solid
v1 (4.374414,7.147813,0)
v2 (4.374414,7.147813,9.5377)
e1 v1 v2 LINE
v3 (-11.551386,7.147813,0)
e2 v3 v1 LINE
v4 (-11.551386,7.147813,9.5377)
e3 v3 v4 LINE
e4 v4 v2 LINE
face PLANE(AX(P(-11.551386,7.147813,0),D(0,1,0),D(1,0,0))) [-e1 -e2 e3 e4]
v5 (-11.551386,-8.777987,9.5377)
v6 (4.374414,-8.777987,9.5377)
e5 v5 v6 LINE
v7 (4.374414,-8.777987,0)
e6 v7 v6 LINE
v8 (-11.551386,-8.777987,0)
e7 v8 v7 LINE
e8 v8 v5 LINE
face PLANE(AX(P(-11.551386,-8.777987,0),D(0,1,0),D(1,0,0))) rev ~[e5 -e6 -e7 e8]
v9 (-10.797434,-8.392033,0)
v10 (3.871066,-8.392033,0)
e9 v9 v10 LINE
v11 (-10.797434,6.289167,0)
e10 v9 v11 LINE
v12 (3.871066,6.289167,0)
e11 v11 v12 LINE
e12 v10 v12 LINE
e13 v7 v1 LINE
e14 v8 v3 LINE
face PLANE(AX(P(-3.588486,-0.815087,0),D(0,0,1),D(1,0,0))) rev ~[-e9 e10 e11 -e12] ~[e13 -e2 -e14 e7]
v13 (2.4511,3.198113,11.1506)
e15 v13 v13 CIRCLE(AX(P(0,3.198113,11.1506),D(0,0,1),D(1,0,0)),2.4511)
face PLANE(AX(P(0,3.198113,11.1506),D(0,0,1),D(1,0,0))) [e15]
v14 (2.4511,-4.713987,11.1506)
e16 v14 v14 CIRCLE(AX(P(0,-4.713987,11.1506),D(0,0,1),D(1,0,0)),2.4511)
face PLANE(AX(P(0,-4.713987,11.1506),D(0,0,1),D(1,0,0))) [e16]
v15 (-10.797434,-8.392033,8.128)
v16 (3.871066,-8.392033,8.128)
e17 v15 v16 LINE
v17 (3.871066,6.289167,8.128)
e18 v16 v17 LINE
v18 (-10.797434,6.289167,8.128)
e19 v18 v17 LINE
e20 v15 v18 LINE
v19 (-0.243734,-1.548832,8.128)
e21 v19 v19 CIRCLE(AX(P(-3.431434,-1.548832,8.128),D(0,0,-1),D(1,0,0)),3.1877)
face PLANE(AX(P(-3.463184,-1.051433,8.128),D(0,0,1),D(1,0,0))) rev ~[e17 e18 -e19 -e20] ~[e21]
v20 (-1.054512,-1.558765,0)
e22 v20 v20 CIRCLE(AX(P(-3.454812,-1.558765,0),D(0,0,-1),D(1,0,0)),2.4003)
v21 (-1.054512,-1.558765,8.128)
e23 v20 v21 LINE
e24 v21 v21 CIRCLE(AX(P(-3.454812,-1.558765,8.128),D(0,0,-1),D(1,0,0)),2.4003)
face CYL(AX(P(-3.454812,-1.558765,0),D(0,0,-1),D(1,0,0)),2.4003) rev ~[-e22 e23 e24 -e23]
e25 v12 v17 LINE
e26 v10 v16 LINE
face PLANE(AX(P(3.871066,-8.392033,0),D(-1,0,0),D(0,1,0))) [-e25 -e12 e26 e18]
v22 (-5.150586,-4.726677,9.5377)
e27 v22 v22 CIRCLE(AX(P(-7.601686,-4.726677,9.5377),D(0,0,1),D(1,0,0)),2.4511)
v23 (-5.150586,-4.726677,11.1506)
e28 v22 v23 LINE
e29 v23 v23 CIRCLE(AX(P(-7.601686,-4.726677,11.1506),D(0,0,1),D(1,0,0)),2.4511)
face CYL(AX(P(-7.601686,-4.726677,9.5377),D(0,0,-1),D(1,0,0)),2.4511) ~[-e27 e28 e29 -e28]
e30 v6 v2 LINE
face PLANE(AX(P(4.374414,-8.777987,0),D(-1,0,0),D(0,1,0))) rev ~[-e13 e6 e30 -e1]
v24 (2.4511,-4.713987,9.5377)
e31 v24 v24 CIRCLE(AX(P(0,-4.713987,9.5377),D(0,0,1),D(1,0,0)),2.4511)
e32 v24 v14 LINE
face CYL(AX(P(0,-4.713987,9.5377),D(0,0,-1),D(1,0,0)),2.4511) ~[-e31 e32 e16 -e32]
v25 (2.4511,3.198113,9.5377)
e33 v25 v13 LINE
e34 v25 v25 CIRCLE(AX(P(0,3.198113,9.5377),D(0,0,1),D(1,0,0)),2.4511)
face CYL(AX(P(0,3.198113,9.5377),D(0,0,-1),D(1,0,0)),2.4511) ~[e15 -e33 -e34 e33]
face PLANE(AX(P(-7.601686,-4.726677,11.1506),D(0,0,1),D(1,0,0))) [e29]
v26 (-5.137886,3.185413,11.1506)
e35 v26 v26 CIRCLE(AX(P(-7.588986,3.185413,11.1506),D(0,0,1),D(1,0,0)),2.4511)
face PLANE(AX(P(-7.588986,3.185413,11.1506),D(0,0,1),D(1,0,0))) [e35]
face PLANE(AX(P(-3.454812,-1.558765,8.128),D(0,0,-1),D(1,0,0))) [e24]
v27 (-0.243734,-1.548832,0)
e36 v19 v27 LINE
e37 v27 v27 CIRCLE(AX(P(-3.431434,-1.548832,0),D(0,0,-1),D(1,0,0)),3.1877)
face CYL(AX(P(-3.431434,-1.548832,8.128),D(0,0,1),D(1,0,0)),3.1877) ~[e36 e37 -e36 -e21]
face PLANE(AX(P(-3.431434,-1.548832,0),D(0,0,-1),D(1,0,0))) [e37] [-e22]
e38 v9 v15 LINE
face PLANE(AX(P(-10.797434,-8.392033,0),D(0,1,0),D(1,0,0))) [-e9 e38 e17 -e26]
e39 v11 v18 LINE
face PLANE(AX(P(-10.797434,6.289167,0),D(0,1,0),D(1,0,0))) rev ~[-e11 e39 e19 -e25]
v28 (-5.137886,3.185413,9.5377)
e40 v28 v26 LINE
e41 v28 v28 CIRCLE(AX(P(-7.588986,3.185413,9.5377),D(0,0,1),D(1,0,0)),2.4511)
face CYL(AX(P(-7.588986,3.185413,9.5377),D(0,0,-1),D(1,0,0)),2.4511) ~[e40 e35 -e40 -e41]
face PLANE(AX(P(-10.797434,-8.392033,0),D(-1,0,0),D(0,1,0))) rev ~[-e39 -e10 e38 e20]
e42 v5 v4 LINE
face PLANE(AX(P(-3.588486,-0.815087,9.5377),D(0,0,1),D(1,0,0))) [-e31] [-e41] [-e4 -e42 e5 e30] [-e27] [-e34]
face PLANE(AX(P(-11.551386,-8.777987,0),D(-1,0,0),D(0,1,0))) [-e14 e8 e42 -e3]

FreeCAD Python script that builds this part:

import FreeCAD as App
import Part
import Sketcher
from FreeCAD import Vector
Q = App.Units.Quantity


def add_polygon(sketch, points):
    """Adds a closed chain of lines whose ends are joined by coincident constraints."""
    first, n = sketch.GeometryCount, len(points)
    for a, b in zip(points, points[1:] + points[:1]):
        sketch.addGeometry(Part.LineSegment(App.Vector(*a, 0), App.Vector(*b, 0)), False)
    for i in range(n):
        sketch.addConstraint(Sketcher.Constraint("Coincident", first + i, 2, first + (i + 1) % n, 1))

doc = App.newDocument("Part")
body = doc.addObject("PartDesign::Body", "Body")

# Sketch on XY plane
sketch1 = doc.addObject("Sketcher::SketchObject", "Sketch")
body.addObject(sketch1)
sketch1.AttachmentSupport = (doc.XY_Plane, [""])
sketch1.MapMode = "FlatFace"
add_polygon(sketch1, [(-12, 7), (-12, -9), (4, -9), (4, 7)])  # lines 0-3
sketch1.addConstraint([
    Sketcher.Constraint("Vertical", 0),
    Sketcher.Constraint("Horizontal", 1),
    Sketcher.Constraint("Vertical", 2),
    Sketcher.Constraint("Horizontal", 3),
    Sketcher.Constraint("Equal", 3, 0),
    Sketcher.Constraint("DistanceX", 1, 1, 1, 2, Q("0.627 in")),
    Sketcher.Constraint("DistanceX", 0, 2, -1, 1, 11.551386),
    Sketcher.Constraint("DistanceY", 0, 2, -1, 1, 8.777987),
])
pad1 = doc.addObject("PartDesign::Pad", "Pad")
body.addObject(pad1)
pad1.Profile = sketch1
pad1.Length = Q("0.3755 in")

# Sketch on XY plane
sketch2 = doc.addObject("Sketcher::SketchObject", "Sketch001")
body.addObject(sketch2)
sketch2.AttachmentSupport = (doc.XY_Plane, [""])
sketch2.MapMode = "FlatFace"
sketch2.AttachmentOffset = App.Placement(Vector(0, 0, 0.3755 * 25.4), App.Rotation())
sketch2.addGeometry(Part.Circle(Vector(-7.6, -4.7, 0), Vector(0, 0, 1), 2.5), False)
sketch2.addConstraint([
    Sketcher.Constraint("Diameter", 0, Q("0.193 in")),
    Sketcher.Constraint("DistanceX", 0, 3, -1, 1, 7.601686),
    Sketcher.Constraint("DistanceY", 0, 3, -1, 1, 4.726677),
])
pad2 = doc.addObject("PartDesign::Pad", "Pad001")
body.addObject(pad2)
pad2.Profile = sketch2
pad2.Length = Q("0.0635 in")

# Sketch on XY plane
sketch3 = doc.addObject("Sketcher::SketchObject", "Sketch002")
body.addObject(sketch3)
sketch3.AttachmentSupport = (doc.XY_Plane, [""])
sketch3.MapMode = "FlatFace"
sketch3.AttachmentOffset = App.Placement(Vector(0, 0, 0.3755 * 25.4), App.Rotation())
sketch3.addGeometry(Part.Circle(Vector(0, -4.7, 0), Vector(0, 0, 1), 2.5), False)
sketch3.addConstraint([
    Sketcher.Constraint("PointOnObject", 0, 3, -2),
    Sketcher.Constraint("Diameter", 0, Q("0.193 in")),
    Sketcher.Constraint("DistanceY", 0, 3, -1, 1, 4.713987),
])
pad3 = doc.addObject("PartDesign::Pad", "Pad002")
body.addObject(pad3)
pad3.Profile = sketch3
pad3.Length = Q("0.0635 in")

# Sketch on XY plane
sketch4 = doc.addObject("Sketcher::SketchObject", "Sketch003")
body.addObject(sketch4)
sketch4.AttachmentSupport = (doc.XY_Plane, [""])
sketch4.MapMode = "FlatFace"
sketch4.AttachmentOffset = App.Placement(Vector(0, 0, 0.3755 * 25.4), App.Rotation())
sketch4.addGeometry(Part.Circle(Vector(-7.6, 3.2, 0), Vector(0, 0, 1), 2.5), False)
sketch4.addConstraint([
    Sketcher.Constraint("Diameter", 0, Q("0.193 in")),
    Sketcher.Constraint("DistanceX", 0, 3, -1, 1, 7.588986),
    Sketcher.Constraint("DistanceY", -1, 1, 0, 3, 3.185413),
])
pad4 = doc.addObject("PartDesign::Pad", "Pad003")
body.addObject(pad4)
pad4.Profile = sketch4
pad4.Length = Q("0.0635 in")

# Sketch on XY plane
sketch5 = doc.addObject("Sketcher::SketchObject", "Sketch004")
body.addObject(sketch5)
sketch5.AttachmentSupport = (doc.XY_Plane, [""])
sketch5.MapMode = "FlatFace"
sketch5.AttachmentOffset = App.Placement(Vector(0, 0, 0.3755 * 25.4), App.Rotation())
sketch5.addGeometry(Part.Circle(Vector(0, 3.2, 0), Vector(0, 0, 1), 2.5), False)
sketch5.addConstraint([
    Sketcher.Constraint("PointOnObject", 0, 3, -2),
    Sketcher.Constraint("Diameter", 0, Q("0.193 in")),
    Sketcher.Constraint("DistanceY", -1, 1, 0, 3, 3.198113),
])
pad5 = doc.addObject("PartDesign::Pad", "Pad004")
body.addObject(pad5)
pad5.Profile = sketch5
pad5.Length = Q("0.0635 in")

# Sketch on XY plane
sketch6 = doc.addObject("Sketcher::SketchObject", "Sketch005")
body.addObject(sketch6)
sketch6.AttachmentSupport = (doc.XY_Plane, [""])
sketch6.MapMode = "FlatFace"
sketch6.addGeometry(Part.Circle(Vector(-3.5, -0.9, 0), Vector(0, 0, 1), 3.2), False)
sketch6.addConstraint([
    Sketcher.Constraint("Diameter", 0, Q("0.2505 in")),
    Sketcher.Constraint("DistanceX", 0, 3, -1, 1, 3.505936),
    Sketcher.Constraint("DistanceY", 0, 3, -1, 1, 0.897213),
])
pocket1 = doc.addObject("PartDesign::Pocket", "Pocket")
body.addObject(pocket1)
pocket1.Profile = sketch6
pocket1.Length = Q("0.2565 in")
pocket1.Reversed = True

# Sketch on XY plane
sketch7 = doc.addObject("Sketcher::SketchObject", "Sketch006")
body.addObject(sketch7)
sketch7.AttachmentSupport = (doc.XY_Plane, [""])
sketch7.MapMode = "FlatFace"
add_polygon(sketch7, [(-11, 6), (-11, -8), (4, -8), (4, 6)])  # lines 0-3
sketch7.addConstraint([
    Sketcher.Constraint("Vertical", 0),
    Sketcher.Constraint("Horizontal", 1),
    Sketcher.Constraint("Vertical", 2),
    Sketcher.Constraint("Horizontal", 3),
    Sketcher.Constraint("DistanceY", 0, 2, 0, 1, Q("0.578 in")),
    Sketcher.Constraint("DistanceX", 1, 1, 1, 2, Q("0.5775 in")),
    Sketcher.Constraint("DistanceX", 0, 2, -1, 1, 10.797434),
    Sketcher.Constraint("DistanceY", 0, 2, -1, 1, 8.392033),
])
pocket2 = doc.addObject("PartDesign::Pocket", "Pocket001")
body.addObject(pocket2)
pocket2.Profile = sketch7
pocket2.Length = Q("0.32 in")
pocket2.Reversed = True

# Sketch on XY plane
sketch8 = doc.addObject("Sketcher::SketchObject", "Sketch007")
body.addObject(sketch8)
sketch8.AttachmentSupport = (doc.XY_Plane, [""])
sketch8.MapMode = "FlatFace"
sketch8.AttachmentOffset = App.Placement(Vector(0, 0, 0.32 * 25.4), App.Rotation())
sketch8.addGeometry(Part.Circle(Vector(-3.4, -1.5, 0), Vector(0, 0, 1), 3.2), False)
sketch8.addConstraint([
    Sketcher.Constraint("Diameter", 0, Q("0.251 in")),
    Sketcher.Constraint("DistanceX", 0, 3, -1, 1, 3.431434),
    Sketcher.Constraint("DistanceY", 0, 3, -1, 1, 1.548832),
])
pad6 = doc.addObject("PartDesign::Pad", "Pad005")
body.addObject(pad6)
pad6.Profile = sketch8
pad6.Length = Q("0.32 in")
pad6.Reversed = True

# Sketch on XY plane
sketch9 = doc.addObject("Sketcher::SketchObject", "Sketch008")
body.addObject(sketch9)
sketch9.AttachmentSupport = (doc.XY_Plane, [""])
sketch9.MapMode = "FlatFace"
sketch9.addGeometry(Part.Circle(Vector(-3.5, -1.6, 0), Vector(0, 0, 1), 2.4), False)
sketch9.addConstraint([
    Sketcher.Constraint("Diameter", 0, Q("0.189 in")),
    Sketcher.Constraint("DistanceX", 0, 3, -1, 1, 3.454812),
    Sketcher.Constraint("DistanceY", 0, 3, -1, 1, 1.558765),
])
pocket3 = doc.addObject("PartDesign::Pocket", "Pocket002")
body.addObject(pocket3)
pocket3.Profile = sketch9
pocket3.Length = Q("0.32 in")
pocket3.Reversed = True
body2 = doc.addObject("PartDesign::Body", "Body001")

# Sketch on XY plane
sketch10 = doc.addObject("Sketcher::SketchObject", "Sketch009")
body2.addObject(sketch10)
sketch10.AttachmentSupport = (doc.getObject("XY_Plane001"), [""])
sketch10.MapMode = "FlatFace"
sketch10.addGeometry(Part.Circle(Vector(-3.5, -0.9, 0), Vector(0, 0, 1), 3.2), False)
sketch10.addConstraint([
    Sketcher.Constraint("Diameter", 0, Q("0.2523 in")),
    Sketcher.Constraint("DistanceX", 0, 3, -1, 1, 3.520086),
    Sketcher.Constraint("DistanceY", 0, 3, -1, 1, 0.851917),
])
pad7 = doc.addObject("PartDesign::Pad", "Pad006")
body2.addObject(pad7)
pad7.Profile = sketch10
pad7.Length = Q("0.27 in")

# Sketch on XY plane
sketch11 = doc.addObject("Sketcher::SketchObject", "Sketch010")
body2.addObject(sketch11)
sketch11.AttachmentSupport = (doc.getObject("XY_Plane001"), [""])
sketch11.MapMode = "FlatFace"
sketch11.addGeometry(Part.Circle(Vector(-3.5, -0.8, 0), Vector(0, 0, 1), 2.5), False)
sketch11.addConstraint([
    Sketcher.Constraint("Diameter", 0, Q("0.194 in")),
    Sketcher.Constraint("DistanceX", 0, 3, -1, 1, 3.526228),
    Sketcher.Constraint("DistanceY", 0, 3, -1, 1, 0.831219),
])
pocket4 = doc.addObject("PartDesign::Pocket", "Pocket003")
body2.addObject(pocket4)
pocket4.Profile = sketch11
pocket4.Length = Q("0.27 in")
pocket4.Reversed = True
body2.Visibility = False

doc.recompute()
